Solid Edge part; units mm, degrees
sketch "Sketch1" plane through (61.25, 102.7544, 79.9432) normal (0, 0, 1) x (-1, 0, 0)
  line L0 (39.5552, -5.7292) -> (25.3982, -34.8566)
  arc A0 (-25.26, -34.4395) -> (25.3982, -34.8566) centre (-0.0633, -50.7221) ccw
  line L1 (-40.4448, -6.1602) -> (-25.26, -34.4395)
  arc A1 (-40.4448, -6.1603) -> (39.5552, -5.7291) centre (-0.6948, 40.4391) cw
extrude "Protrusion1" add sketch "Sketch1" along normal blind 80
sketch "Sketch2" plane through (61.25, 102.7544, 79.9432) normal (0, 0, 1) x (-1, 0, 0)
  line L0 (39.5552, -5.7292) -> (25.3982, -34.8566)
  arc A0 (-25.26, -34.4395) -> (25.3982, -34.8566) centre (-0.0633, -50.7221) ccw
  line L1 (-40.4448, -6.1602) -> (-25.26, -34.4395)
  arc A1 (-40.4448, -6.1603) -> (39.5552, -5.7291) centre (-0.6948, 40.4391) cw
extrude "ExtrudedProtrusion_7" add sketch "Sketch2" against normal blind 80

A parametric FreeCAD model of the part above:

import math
import FreeCAD as App
import Part
import Sketcher
from FreeCAD import Vector

doc = App.newDocument("Part")
body = doc.addObject("PartDesign::Body", "Body")

# Sketch on XY plane
sketch1 = body.newObject("Sketcher::SketchObject", "Sketch")
sketch1.AttachmentSupport = (doc.getObject("XY_Plane"), [""])
sketch1.MapMode = "FlatFace"
sketch1.AttachmentOffset = App.Placement(Vector(0, 0, 79.9432), App.Rotation())
sketch1.addGeometry([
    Part.LineSegment(Vector(35.8518, 137.611, 0), Vector(21.6948, 108.4836, 0)),
    Part.ArcOfCircle(Part.Circle(Vector(61.9448, 62.3153, 0), Vector(0, 0, 1), 61.250033), math.radians(131.082254), math.radians(409.535254)),
    Part.LineSegment(Vector(101.6948, 108.9146, 0), Vector(86.51, 137.1939, 0)),
    Part.ArcOfCircle(Part.Circle(Vector(61.3133, 153.4765, 0), Vector(0, 0, 1), 29.999946), math.radians(-32.871334), math.radians(211.927746)),
], False)
sketch1.addConstraint([
    Sketcher.Constraint("Coincident", 0, 2, 1, 1),
    Sketcher.Constraint("Coincident", 1, 2, 2, 1),
    Sketcher.Constraint("Coincident", 2, 2, 3, 1),
    Sketcher.Constraint("Coincident", 3, 2, 0, 1),
    Sketcher.Constraint("Radius", 3, 30.0),
    Sketcher.Constraint("Radius", 1, 61.25),
    Sketcher.Constraint("DistanceX", 0, 2, 1, 2, 80.0),
    Sketcher.Constraint("DistanceX", -1, 1, 2, 2, 86.51),
    Sketcher.Constraint("DistanceX", 0, 2, 1, 3, 40.25),
    Sketcher.Constraint("DistanceY", -1, 1, 2, 2, 137.194),
    Sketcher.Constraint("DistanceY", -1, 1, 3, 2, 137.611),
    Sketcher.Constraint("DistanceY", 0, 2, 3, 3, 44.993),
    Sketcher.Constraint("DistanceX", 0, 2, 3, 2, 14.157),
    Sketcher.Constraint("Distance", 0, 32.3856),
])
pad1 = body.newObject("PartDesign::Pad", "Pad")
pad1.Profile = sketch1
pad1.Length = 80

# Sketch on XY plane
sketch2 = body.newObject("Sketcher::SketchObject", "Sketch001")
sketch2.AttachmentSupport = (doc.getObject("XY_Plane"), [""])
sketch2.MapMode = "FlatFace"
sketch2.AttachmentOffset = App.Placement(Vector(0, 0, 79.9432), App.Rotation())
sketch2.addGeometry([
    Part.LineSegment(Vector(35.8518, 137.611, 0), Vector(21.6948, 108.4836, 0)),
    Part.ArcOfCircle(Part.Circle(Vector(61.9448, 62.3153, 0), Vector(0, 0, 1), 61.250033), math.radians(131.082254), math.radians(409.535254)),
    Part.LineSegment(Vector(101.6948, 108.9146, 0), Vector(86.51, 137.1939, 0)),
    Part.ArcOfCircle(Part.Circle(Vector(61.3133, 153.4765, 0), Vector(0, 0, 1), 29.999946), math.radians(-32.871334), math.radians(211.927746)),
], False)
sketch2.addConstraint([
    Sketcher.Constraint("Coincident", 0, 2, 1, 1),
    Sketcher.Constraint("Coincident", 1, 2, 2, 1),
    Sketcher.Constraint("Coincident", 2, 2, 3, 1),
    Sketcher.Constraint("Coincident", 3, 2, 0, 1),
    Sketcher.Constraint("Radius", 3, 30.0),
    Sketcher.Constraint("Radius", 1, 61.25),
    Sketcher.Constraint("DistanceX", 0, 2, 1, 2, 80.0),
    Sketcher.Constraint("DistanceX", -1, 1, 2, 2, 86.51),
    Sketcher.Constraint("DistanceX", 0, 2, 1, 3, 40.25),
    Sketcher.Constraint("DistanceY", -1, 1, 2, 2, 137.194),
    Sketcher.Constraint("DistanceY", -1, 1, 3, 2, 137.611),
    Sketcher.Constraint("DistanceY", 0, 2, 3, 3, 44.993),
    Sketcher.Constraint("DistanceX", 0, 2, 3, 2, 14.157),
    Sketcher.Constraint("Distance", 0, 32.3856),
])
pad2 = body.newObject("PartDesign::Pad", "Pad001")
pad2.Profile = sketch2
pad2.Length = 80
pad2.Reversed = True

doc.recompute()
